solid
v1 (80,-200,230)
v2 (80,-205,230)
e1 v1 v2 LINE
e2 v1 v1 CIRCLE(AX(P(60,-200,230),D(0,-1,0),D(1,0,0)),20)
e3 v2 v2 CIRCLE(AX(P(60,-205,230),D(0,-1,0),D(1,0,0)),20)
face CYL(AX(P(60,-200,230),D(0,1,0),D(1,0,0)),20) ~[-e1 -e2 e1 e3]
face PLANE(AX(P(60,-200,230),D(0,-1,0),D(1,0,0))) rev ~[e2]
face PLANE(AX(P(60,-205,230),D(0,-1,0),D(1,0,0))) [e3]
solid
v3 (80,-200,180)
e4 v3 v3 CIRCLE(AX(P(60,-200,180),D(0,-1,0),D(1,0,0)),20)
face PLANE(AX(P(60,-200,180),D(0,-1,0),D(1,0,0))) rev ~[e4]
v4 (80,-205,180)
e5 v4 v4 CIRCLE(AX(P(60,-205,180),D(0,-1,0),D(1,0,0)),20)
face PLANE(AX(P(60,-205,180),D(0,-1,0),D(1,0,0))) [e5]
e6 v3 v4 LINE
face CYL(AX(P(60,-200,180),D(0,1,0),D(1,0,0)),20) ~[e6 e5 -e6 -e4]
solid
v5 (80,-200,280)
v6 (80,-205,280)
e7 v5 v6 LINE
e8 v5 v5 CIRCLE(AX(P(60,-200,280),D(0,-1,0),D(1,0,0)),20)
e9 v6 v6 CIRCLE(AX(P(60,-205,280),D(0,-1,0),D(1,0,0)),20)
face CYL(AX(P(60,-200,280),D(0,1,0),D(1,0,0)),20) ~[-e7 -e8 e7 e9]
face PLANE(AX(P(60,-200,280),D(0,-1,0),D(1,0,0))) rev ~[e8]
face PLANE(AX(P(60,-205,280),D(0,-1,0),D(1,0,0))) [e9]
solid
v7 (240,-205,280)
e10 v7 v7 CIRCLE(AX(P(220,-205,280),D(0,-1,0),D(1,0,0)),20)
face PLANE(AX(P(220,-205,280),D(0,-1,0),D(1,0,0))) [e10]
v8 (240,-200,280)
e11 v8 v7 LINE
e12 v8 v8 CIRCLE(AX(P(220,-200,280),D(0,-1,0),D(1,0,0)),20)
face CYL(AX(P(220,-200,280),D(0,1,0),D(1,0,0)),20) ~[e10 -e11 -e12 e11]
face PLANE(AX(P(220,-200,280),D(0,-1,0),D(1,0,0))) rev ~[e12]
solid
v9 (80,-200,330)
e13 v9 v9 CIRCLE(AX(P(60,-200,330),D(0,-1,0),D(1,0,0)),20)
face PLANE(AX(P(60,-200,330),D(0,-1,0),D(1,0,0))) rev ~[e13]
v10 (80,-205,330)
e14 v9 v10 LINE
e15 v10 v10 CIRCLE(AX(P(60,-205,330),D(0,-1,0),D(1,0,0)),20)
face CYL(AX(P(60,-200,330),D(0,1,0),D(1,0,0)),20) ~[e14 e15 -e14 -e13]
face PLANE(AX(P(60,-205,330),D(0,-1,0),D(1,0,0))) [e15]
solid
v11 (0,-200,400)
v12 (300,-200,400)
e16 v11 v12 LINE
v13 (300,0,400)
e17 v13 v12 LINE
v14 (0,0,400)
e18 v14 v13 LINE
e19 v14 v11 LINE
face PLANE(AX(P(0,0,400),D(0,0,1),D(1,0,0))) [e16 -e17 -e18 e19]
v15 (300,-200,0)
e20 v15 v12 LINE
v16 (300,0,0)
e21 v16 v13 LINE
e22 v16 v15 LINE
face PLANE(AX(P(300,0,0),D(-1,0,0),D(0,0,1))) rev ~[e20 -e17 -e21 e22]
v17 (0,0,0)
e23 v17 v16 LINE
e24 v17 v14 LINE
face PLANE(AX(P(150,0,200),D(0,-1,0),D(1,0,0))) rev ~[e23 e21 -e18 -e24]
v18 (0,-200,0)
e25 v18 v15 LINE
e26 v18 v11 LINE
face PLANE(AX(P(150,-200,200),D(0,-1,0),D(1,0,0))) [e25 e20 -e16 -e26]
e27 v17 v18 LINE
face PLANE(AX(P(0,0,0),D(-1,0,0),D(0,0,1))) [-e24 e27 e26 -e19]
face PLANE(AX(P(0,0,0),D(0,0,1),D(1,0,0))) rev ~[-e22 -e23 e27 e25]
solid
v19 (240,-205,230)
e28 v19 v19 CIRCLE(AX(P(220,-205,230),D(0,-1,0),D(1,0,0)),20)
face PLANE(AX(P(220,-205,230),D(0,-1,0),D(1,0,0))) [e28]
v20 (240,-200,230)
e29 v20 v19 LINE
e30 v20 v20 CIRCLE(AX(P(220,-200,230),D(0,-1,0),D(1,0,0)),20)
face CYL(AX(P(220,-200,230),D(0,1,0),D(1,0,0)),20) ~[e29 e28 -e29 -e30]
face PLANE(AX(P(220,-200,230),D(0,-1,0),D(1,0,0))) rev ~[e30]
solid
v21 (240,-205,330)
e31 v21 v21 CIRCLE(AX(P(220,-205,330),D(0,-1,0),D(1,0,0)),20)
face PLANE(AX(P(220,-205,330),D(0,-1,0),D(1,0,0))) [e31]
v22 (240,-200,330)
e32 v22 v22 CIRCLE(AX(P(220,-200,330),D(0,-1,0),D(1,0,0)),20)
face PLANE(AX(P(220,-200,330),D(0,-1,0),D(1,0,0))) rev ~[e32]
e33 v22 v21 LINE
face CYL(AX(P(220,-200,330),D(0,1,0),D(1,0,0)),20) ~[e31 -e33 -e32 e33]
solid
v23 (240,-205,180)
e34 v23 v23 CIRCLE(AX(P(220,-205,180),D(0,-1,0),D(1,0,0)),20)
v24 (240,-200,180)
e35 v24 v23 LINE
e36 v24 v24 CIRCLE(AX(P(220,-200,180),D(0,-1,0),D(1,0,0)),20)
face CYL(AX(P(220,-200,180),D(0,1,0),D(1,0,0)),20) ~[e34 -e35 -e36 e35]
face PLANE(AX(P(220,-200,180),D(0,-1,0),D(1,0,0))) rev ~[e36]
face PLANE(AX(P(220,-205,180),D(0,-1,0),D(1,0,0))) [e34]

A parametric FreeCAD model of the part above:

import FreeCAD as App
import Part
import Sketcher

V = App.Vector
Q = App.Units.Quantity

doc = App.newDocument("Part")
body = doc.addObject("PartDesign::Body", "Body")

# Sketch on XZ plane
sketch1 = body.newObject("Sketcher::SketchObject", "Sketch")
sketch1.AttachmentSupport = (doc.getObject("XZ_Plane"), [""])
sketch1.MapMode = "FlatFace"
sketch1.addGeometry([
    Part.LineSegment(V(0, 400, 0), V(0, 0, 0)),
    Part.LineSegment(V(0, 0, 0), V(300, 0, 0)),
    Part.LineSegment(V(300, 0, 0), V(300, 400, 0)),
    Part.LineSegment(V(300, 400, 0), V(0, 400, 0)),
], False)
sketch1.addConstraint([
    Sketcher.Constraint("Coincident", 0, 2, 1, 1),
    Sketcher.Constraint("Coincident", 1, 2, 2, 1),
    Sketcher.Constraint("Coincident", 2, 2, 3, 1),
    Sketcher.Constraint("Coincident", 3, 2, 0, 1),
    Sketcher.Constraint("Vertical", 0),
    Sketcher.Constraint("Horizontal", 1),
    Sketcher.Constraint("Vertical", 2),
    Sketcher.Constraint("Horizontal", 3),
    Sketcher.Constraint("Coincident", 0, 2, -1, 1),
    Sketcher.Constraint("DistanceX", 1, 1, 1, 2, Q("300 mm")),
    Sketcher.Constraint("DistanceY", 0, 2, 0, 1, Q("400 mm")),
])
pad1 = body.newObject("PartDesign::Pad", "Pad")
pad1.Profile = sketch1
pad1.Length = 200
body2 = doc.addObject("PartDesign::Body", "Body001")
body2.AllowCompound = True

# Sketch on XZ plane
sketch2 = body2.newObject("Sketcher::SketchObject", "Sketch001")
sketch2.AttachmentSupport = (doc.getObject("XZ_Plane001"), [""])
sketch2.MapMode = "FlatFace"
sketch2.AttachmentOffset = App.Placement(V(0, 0, 200), App.Rotation())
sketch2.addGeometry([
    Part.Circle(V(60, 280, 0), V(0, 0, 1), 20),  # 0
    Part.Circle(V(60, 330, 0), V(0, 0, 1), 20),  # 1
    Part.Circle(V(60, 230, 0), V(0, 0, 1), 20),  # 2
    Part.Circle(V(60, 180, 0), V(0, 0, 1), 20),  # 3
    Part.Circle(V(220, 330, 0), V(0, 0, 1), 20),  # 4
    Part.Circle(V(220, 280, 0), V(0, 0, 1), 20),  # 5
    Part.Circle(V(220, 230, 0), V(0, 0, 1), 20),  # 6
    Part.Circle(V(220, 180, 0), V(0, 0, 1), 20),  # 7
], False)
sketch2.addConstraint([
    Sketcher.Constraint("Equal", 0, 1),
    Sketcher.Constraint("Equal", 1, 2),
    Sketcher.Constraint("Equal", 2, 3),
    Sketcher.Constraint("Equal", 3, 4),
    Sketcher.Constraint("Equal", 4, 5),
    Sketcher.Constraint("Equal", 5, 6),
    Sketcher.Constraint("Equal", 6, 7),
    Sketcher.Constraint("Horizontal", 1, 3, 4, 3),
    Sketcher.Constraint("Horizontal", 0, 3, 5, 3),
    Sketcher.Constraint("Horizontal", 2, 3, 6, 3),
    Sketcher.Constraint("Horizontal", 3, 3, 7, 3),
    Sketcher.Constraint("Vertical", 0, 3, 1, 3),
    Sketcher.Constraint("Vertical", 1, 3, 2, 3),
    Sketcher.Constraint("Vertical", 2, 3, 3, 3),
    Sketcher.Constraint("Vertical", 4, 3, 5, 3),
    Sketcher.Constraint("Vertical", 5, 3, 6, 3),
    Sketcher.Constraint("Vertical", 6, 3, 7, 3),
    Sketcher.Constraint("Diameter", 0, Q("40 mm")),
    Sketcher.Constraint("DistanceX", -1, 1, 0, 3, Q("60 mm")),
    Sketcher.Constraint("DistanceY", -1, 1, 0, 3, Q("280 mm")),
    Sketcher.Constraint("DistanceY", -1, 1, 1, 3, Q("330 mm")),
    Sketcher.Constraint("DistanceY", -1, 1, 2, 3, Q("230 mm")),
    Sketcher.Constraint("DistanceY", -1, 1, 3, 3, Q("180 mm")),
    Sketcher.Constraint("DistanceX", -1, 1, 4, 3, Q("220 mm")),
])
pad2 = body2.newObject("PartDesign::Pad", "Pad001")
pad2.Profile = sketch2
pad2.Length = 5

doc.recompute()
